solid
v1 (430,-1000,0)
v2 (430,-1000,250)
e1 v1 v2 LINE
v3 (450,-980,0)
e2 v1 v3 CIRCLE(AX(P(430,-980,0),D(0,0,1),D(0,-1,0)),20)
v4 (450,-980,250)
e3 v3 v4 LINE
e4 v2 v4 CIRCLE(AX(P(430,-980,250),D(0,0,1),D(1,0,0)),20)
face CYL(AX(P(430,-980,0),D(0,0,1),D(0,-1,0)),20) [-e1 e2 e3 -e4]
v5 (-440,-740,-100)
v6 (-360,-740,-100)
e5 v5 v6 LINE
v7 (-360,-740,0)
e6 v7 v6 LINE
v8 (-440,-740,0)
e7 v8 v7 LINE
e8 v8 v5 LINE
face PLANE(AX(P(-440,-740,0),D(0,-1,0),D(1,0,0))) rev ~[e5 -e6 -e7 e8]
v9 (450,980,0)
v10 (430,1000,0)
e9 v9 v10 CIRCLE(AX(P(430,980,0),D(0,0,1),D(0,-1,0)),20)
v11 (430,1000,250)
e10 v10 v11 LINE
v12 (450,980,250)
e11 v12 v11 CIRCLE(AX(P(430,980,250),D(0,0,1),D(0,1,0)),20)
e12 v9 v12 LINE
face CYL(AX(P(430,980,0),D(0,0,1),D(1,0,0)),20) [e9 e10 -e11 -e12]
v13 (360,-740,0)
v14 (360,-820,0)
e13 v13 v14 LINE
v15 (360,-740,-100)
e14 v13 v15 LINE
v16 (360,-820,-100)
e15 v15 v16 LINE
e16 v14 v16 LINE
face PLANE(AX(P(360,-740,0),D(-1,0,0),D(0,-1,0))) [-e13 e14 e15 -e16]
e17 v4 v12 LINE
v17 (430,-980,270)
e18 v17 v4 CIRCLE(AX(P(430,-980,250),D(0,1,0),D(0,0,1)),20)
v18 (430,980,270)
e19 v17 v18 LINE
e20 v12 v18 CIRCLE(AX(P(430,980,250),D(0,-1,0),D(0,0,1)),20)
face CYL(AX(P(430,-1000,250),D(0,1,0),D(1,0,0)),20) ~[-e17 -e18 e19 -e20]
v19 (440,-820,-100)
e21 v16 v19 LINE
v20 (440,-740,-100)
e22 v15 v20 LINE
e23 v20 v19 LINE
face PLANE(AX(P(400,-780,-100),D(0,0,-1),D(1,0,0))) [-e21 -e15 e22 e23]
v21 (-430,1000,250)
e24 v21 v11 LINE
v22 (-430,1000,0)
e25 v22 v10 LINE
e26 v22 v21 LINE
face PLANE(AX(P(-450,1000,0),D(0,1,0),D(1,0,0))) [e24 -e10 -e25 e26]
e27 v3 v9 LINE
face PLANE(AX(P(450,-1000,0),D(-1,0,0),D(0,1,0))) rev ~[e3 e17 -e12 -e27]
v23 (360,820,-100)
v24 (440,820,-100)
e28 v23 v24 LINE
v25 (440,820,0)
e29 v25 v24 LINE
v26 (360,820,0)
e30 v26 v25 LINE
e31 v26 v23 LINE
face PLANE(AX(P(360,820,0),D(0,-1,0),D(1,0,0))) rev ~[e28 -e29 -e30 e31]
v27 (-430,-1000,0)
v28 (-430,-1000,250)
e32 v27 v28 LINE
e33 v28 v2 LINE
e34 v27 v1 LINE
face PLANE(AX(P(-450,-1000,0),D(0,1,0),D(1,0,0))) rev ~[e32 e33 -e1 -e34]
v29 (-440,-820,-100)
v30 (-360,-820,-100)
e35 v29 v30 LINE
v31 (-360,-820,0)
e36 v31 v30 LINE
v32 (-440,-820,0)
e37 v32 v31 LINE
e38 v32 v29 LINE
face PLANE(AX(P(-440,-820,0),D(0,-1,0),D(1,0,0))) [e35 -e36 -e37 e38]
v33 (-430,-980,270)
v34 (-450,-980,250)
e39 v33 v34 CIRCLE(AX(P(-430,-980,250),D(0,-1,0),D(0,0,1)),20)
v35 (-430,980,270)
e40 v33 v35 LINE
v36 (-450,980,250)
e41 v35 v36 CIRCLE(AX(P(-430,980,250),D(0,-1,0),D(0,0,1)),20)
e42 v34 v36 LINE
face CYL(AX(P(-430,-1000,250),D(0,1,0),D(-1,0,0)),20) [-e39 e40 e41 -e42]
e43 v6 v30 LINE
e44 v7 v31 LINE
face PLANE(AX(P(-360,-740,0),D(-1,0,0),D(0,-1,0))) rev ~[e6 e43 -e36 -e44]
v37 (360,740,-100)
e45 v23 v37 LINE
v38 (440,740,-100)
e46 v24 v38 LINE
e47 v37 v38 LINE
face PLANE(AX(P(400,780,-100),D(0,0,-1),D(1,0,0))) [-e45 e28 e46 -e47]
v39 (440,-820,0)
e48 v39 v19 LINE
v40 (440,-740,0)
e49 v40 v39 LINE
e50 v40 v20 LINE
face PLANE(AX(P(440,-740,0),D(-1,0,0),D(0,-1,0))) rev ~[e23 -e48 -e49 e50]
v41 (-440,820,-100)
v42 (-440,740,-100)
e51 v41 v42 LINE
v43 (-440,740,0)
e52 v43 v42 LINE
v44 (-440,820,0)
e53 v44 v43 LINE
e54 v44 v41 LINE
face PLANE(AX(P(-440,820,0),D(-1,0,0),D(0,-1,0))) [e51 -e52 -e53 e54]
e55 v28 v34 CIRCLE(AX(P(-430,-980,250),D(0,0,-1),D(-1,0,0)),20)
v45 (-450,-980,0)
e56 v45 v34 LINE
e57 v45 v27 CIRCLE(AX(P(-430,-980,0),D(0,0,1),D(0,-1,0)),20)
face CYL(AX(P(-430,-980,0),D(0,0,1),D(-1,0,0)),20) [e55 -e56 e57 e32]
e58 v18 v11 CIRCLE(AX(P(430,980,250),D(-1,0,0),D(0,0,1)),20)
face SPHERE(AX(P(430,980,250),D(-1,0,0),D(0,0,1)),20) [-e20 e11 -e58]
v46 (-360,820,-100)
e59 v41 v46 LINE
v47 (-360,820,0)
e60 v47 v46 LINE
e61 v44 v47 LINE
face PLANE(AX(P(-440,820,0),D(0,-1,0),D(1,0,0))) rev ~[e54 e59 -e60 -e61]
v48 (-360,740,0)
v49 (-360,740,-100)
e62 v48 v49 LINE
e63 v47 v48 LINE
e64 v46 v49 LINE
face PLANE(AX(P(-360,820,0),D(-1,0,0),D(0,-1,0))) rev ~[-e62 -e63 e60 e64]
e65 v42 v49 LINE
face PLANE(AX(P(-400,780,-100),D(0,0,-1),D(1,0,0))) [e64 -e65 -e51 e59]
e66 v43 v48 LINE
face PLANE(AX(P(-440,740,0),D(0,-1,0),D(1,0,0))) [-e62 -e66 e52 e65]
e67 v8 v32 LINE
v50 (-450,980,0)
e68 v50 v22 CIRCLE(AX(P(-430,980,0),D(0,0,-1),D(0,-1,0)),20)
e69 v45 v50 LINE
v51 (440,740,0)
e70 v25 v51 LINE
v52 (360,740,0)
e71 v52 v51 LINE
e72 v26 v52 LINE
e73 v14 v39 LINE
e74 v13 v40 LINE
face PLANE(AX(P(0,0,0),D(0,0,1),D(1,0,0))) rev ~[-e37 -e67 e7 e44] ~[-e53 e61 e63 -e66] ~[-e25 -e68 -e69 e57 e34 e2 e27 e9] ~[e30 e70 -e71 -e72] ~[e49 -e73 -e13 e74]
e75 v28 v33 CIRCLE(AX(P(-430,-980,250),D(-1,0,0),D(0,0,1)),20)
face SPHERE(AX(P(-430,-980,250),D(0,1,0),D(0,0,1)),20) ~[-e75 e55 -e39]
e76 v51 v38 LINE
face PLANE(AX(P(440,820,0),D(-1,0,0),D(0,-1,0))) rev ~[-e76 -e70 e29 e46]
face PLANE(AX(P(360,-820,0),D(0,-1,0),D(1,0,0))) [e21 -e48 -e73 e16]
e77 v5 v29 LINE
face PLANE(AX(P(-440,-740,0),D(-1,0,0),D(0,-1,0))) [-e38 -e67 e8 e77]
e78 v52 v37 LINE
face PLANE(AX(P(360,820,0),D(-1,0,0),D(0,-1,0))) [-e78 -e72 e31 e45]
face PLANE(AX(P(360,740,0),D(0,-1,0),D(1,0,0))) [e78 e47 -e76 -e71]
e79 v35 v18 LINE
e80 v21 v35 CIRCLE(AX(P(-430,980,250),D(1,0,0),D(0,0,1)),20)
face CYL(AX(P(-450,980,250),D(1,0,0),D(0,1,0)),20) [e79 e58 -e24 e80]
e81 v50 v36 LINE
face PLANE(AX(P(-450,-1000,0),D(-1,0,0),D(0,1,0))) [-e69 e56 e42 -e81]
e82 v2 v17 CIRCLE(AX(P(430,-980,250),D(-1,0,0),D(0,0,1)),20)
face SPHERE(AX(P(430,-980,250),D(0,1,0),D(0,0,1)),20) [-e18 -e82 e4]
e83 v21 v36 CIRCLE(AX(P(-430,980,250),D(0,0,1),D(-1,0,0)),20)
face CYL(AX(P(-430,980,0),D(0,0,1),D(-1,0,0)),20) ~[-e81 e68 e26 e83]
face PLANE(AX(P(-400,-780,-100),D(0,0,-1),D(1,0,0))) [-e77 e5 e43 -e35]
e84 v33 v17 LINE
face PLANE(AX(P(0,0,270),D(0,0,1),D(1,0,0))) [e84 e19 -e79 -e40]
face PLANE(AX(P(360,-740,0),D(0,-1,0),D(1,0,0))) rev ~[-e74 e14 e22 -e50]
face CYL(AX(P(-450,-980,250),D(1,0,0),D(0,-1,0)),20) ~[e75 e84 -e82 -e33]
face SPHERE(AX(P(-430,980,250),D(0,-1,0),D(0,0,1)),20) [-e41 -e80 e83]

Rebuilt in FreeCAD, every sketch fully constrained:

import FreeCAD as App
import Part
import Sketcher

V = App.Vector
Q = App.Units.Quantity


def edges_at(feature, points):
    """Names of the edges that pass closest to the given points."""
    edges = feature.Shape.Edges
    near = lambda p: min(range(len(edges)), key=lambda i: edges[i].distToShape(Part.Vertex(*p))[0])
    return sorted({f"Edge{near(p) + 1}" for p in points})


def add_polygon(sketch, points):
    """Adds a closed chain of lines whose ends are joined by coincident constraints."""
    first, n = sketch.GeometryCount, len(points)
    for a, b in zip(points, points[1:] + points[:1]):
        sketch.addGeometry(Part.LineSegment(App.Vector(*a, 0), App.Vector(*b, 0)), False)
    for i in range(n):
        sketch.addConstraint(Sketcher.Constraint("Coincident", first + i, 2, first + (i + 1) % n, 1))

doc = App.newDocument("Part")
body = doc.addObject("PartDesign::Body", "Body")

# Sketch on XY plane
sketch1 = doc.addObject("Sketcher::SketchObject", "Sketch")
body.addObject(sketch1)
sketch1.AttachmentSupport = (doc.XY_Plane, [""])
sketch1.MapMode = "FlatFace"
add_polygon(sketch1, [(-450, 1000), (-450, -1000), (450, -1000), (450, 1000)])  # lines 0-3
sketch1.addConstraint([
    Sketcher.Constraint("Vertical", 0),
    Sketcher.Constraint("Horizontal", 1),
    Sketcher.Constraint("Vertical", 2),
    Sketcher.Constraint("Horizontal", 3),
    Sketcher.Constraint("Symmetric", 0, 2, 2, 2, -1, 1),
    Sketcher.Constraint("DistanceX", 1, 1, 1, 2, Q("900 mm")),
    Sketcher.Constraint("DistanceY", 0, 2, 0, 1, Q("2000 mm")),
])
pad1 = doc.addObject("PartDesign::Pad", "Pad")
body.addObject(pad1)
pad1.Profile = sketch1
pad1.Length = 270
doc.recompute()

fillet = doc.addObject("PartDesign::Fillet", "Fillet")
body.addObject(fillet)
fillet.Base = (pad1, edges_at(pad1, [
    (-450, 0, 270),
    (0, 1000, 270),
    (450, 0, 270),
    (0, -1000, 270),
    (450, -1000, 135),
    (450, 1000, 135),
    (-450, 1000, 135),
    (-450, -1000, 135),
]))
fillet.Radius = 20

# Sketch on XY plane
sketch2 = doc.addObject("Sketcher::SketchObject", "Sketch001")
body.addObject(sketch2)
sketch2.AttachmentSupport = (doc.XY_Plane, [""])
sketch2.MapMode = "FlatFace"
add_polygon(sketch2, [(-440, -820), (-440, -740), (-360, -740), (-360, -820)])  # lines 0-3
add_polygon(sketch2, [(360, -820), (360, -740), (440, -740), (440, -820)])  # lines 4-7
add_polygon(sketch2, [(360, 740), (360, 820), (440, 820), (440, 740)])  # lines 8-11
add_polygon(sketch2, [(-440, 740), (-440, 820), (-360, 820), (-360, 740)])  # lines 12-15
sketch2.addConstraint([
    Sketcher.Constraint("Vertical", 0),
    Sketcher.Constraint("Horizontal", 1),
    Sketcher.Constraint("Vertical", 2),
    Sketcher.Constraint("Horizontal", 3),
    Sketcher.Constraint("Vertical", 4),
    Sketcher.Constraint("Horizontal", 5),
    Sketcher.Constraint("Vertical", 6),
    Sketcher.Constraint("Horizontal", 7),
    Sketcher.Constraint("Vertical", 8),
    Sketcher.Constraint("Horizontal", 9),
    Sketcher.Constraint("Vertical", 10),
    Sketcher.Constraint("Horizontal", 11),
    Sketcher.Constraint("Vertical", 12),
    Sketcher.Constraint("Horizontal", 13),
    Sketcher.Constraint("Vertical", 14),
    Sketcher.Constraint("Horizontal", 15),
    Sketcher.Constraint("Symmetric", 2, 2, 8, 2, -1, 1),
    Sketcher.Constraint("Symmetric", 0, 2, 10, 2, -1, 1),
    Sketcher.Constraint("Symmetric", 6, 2, 12, 2, -1, 1),
    Sketcher.Constraint("Symmetric", 4, 2, 14, 2, -1, 1),
    Sketcher.Constraint("Symmetric", 1, 2, 4, 2, -2),
    Sketcher.Constraint("Symmetric", 3, 2, 6, 2, -2),
    Sketcher.Constraint("Equal", 15, 0),
    Sketcher.Constraint("DistanceX", 1, 1, 1, 2, Q("80 mm")),
    Sketcher.Constraint("DistanceX", 0, 2, -1, 1, Q("440 mm")),
    Sketcher.Constraint("DistanceY", 0, 2, -1, 1, Q("740 mm")),
])
pad2 = doc.addObject("PartDesign::Pad", "Pad001")
body.addObject(pad2)
pad2.Profile = sketch2
pad2.Length = 100
pad2.Reversed = True

doc.recompute()
